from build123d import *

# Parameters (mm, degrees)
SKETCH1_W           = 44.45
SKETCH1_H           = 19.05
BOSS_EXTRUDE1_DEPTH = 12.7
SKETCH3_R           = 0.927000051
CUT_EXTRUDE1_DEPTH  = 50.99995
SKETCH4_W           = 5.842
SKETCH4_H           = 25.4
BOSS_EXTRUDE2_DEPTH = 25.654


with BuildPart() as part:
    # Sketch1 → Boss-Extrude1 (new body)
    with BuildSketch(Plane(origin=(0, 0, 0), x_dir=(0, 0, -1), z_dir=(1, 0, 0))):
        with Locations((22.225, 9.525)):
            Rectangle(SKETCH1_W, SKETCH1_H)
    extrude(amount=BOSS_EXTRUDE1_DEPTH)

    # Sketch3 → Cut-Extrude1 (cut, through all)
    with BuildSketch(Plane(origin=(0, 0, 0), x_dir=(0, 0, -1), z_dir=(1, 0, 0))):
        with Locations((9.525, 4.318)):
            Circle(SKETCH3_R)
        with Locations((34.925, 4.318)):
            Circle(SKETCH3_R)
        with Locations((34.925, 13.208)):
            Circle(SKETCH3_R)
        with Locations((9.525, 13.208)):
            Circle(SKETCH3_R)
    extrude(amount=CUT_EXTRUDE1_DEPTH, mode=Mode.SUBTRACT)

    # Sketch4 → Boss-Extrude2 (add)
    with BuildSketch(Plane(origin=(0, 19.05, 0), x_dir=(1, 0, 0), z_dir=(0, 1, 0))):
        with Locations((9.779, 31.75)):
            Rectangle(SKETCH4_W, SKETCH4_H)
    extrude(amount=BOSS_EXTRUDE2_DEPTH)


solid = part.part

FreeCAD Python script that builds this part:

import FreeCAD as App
import Part
import Sketcher
from FreeCAD import Vector
Q = App.Units.Quantity

doc = App.newDocument("Part")
body = doc.addObject("PartDesign::Body", "Body")

# Sketch on YZ plane
sketch1 = doc.addObject("Sketcher::SketchObject", "Sketch")
body.addObject(sketch1)
sketch1.AttachmentSupport = (doc.YZ_Plane, [""])
sketch1.MapMode = "FlatFace"
sketch1.addGeometry([
    Part.LineSegment(Vector(19.05, 0, 0), Vector(0, 0, 0)),
    Part.LineSegment(Vector(0, 0, 0), Vector(0, -44.45, 0)),
    Part.LineSegment(Vector(0, -44.45, 0), Vector(19.05, -44.45, 0)),
    Part.LineSegment(Vector(19.05, -44.45, 0), Vector(19.05, 0, 0)),
], False)
sketch1.addConstraint([
    Sketcher.Constraint("Coincident", 0, 2, 1, 1),
    Sketcher.Constraint("Coincident", 1, 2, 2, 1),
    Sketcher.Constraint("Coincident", 2, 2, 3, 1),
    Sketcher.Constraint("Coincident", 3, 2, 0, 1),
    Sketcher.Constraint("Horizontal", 0),
    Sketcher.Constraint("Vertical", 1),
    Sketcher.Constraint("Horizontal", 2),
    Sketcher.Constraint("Vertical", 3),
    Sketcher.Constraint("Coincident", 0, 2, -1, 1),
    Sketcher.Constraint("DistanceX", 0, 2, 0, 1, Q("0.75 in")),
    Sketcher.Constraint("DistanceY", 1, 2, 1, 1, Q("1.75 in")),
])
pad1 = doc.addObject("PartDesign::Pad", "Pad")
body.addObject(pad1)
pad1.Profile = sketch1
pad1.Length = Q("0.5 in")

# Sketch on YZ plane
sketch2 = doc.addObject("Sketcher::SketchObject", "Sketch001")
body.addObject(sketch2)
sketch2.AttachmentSupport = (doc.YZ_Plane, [""])
sketch2.MapMode = "FlatFace"
sketch2.addGeometry([
    Part.Circle(Vector(4.318, -9.525, 0), Vector(0, 0, 1), 0.927),
    Part.Circle(Vector(4.318, -34.925, 0), Vector(0, 0, 1), 0.927),
    Part.Circle(Vector(13.208, -34.925, 0), Vector(0, 0, 1), 0.927),
    Part.Circle(Vector(13.208, -9.525, 0), Vector(0, 0, 1), 0.927),
], False)
sketch2.addConstraint([
    Sketcher.Constraint("Equal", 0, 1),
    Sketcher.Constraint("Equal", 1, 2),
    Sketcher.Constraint("Equal", 2, 3),
    Sketcher.Constraint("Horizontal", 1, 3, 2, 3),
    Sketcher.Constraint("Horizontal", 0, 3, 3, 3),
    Sketcher.Constraint("Vertical", 0, 3, 1, 3),
    Sketcher.Constraint("Vertical", 2, 3, 3, 3),
    Sketcher.Constraint("DistanceY", 1, 3, 0, 3, Q("1 in")),
    Sketcher.Constraint("Diameter", 0, 1.854),
    Sketcher.Constraint("DistanceX", -1, 1, 0, 3, Q("0.17 in")),
    Sketcher.Constraint("DistanceX", -1, 1, 2, 3, Q("0.52 in")),
    Sketcher.Constraint("DistanceY", 0, 3, -1, 1, Q("0.375 in")),
])
pocket1 = doc.addObject("PartDesign::Pocket", "Pocket")
body.addObject(pocket1)
pocket1.Profile = sketch2
pocket1.Type = "ThroughAll"
pocket1.Reversed = True

# Sketch on XZ plane
sketch3 = doc.addObject("Sketcher::SketchObject", "Sketch002")
body.addObject(sketch3)
sketch3.AttachmentSupport = (doc.XZ_Plane, [""])
sketch3.MapMode = "FlatFace"
sketch3.AttachmentOffset = App.Placement(Vector(0, 0, -0.75 * 25.4), App.Rotation())
sketch3.addGeometry([
    Part.LineSegment(Vector(6.858, -44.45, 0), Vector(6.858, -19.05, 0)),
    Part.LineSegment(Vector(6.858, -19.05, 0), Vector(12.7, -19.05, 0)),
    Part.LineSegment(Vector(12.7, -19.05, 0), Vector(12.7, -44.45, 0)),
    Part.LineSegment(Vector(12.7, -44.45, 0), Vector(6.858, -44.45, 0)),
], False)
sketch3.addConstraint([
    Sketcher.Constraint("Coincident", 0, 2, 1, 1),
    Sketcher.Constraint("Coincident", 1, 2, 2, 1),
    Sketcher.Constraint("Coincident", 2, 2, 3, 1),
    Sketcher.Constraint("Coincident", 3, 2, 0, 1),
    Sketcher.Constraint("Vertical", 0),
    Sketcher.Constraint("Horizontal", 1),
    Sketcher.Constraint("Vertical", 2),
    Sketcher.Constraint("Horizontal", 3),
    Sketcher.Constraint("DistanceY", 0, 1, 0, 2, Q("1 in")),
    Sketcher.Constraint("DistanceX", 1, 1, 1, 2, Q("0.23 in")),
    Sketcher.Constraint("DistanceX", -1, 1, 1, 2, Q("0.5 in")),
    Sketcher.Constraint("DistanceY", 0, 2, -1, 1, Q("0.75 in")),
])
pad2 = doc.addObject("PartDesign::Pad", "Pad001")
body.addObject(pad2)
pad2.Profile = sketch3
pad2.Length = Q("1.01 in")
pad2.Reversed = True

doc.recompute()
